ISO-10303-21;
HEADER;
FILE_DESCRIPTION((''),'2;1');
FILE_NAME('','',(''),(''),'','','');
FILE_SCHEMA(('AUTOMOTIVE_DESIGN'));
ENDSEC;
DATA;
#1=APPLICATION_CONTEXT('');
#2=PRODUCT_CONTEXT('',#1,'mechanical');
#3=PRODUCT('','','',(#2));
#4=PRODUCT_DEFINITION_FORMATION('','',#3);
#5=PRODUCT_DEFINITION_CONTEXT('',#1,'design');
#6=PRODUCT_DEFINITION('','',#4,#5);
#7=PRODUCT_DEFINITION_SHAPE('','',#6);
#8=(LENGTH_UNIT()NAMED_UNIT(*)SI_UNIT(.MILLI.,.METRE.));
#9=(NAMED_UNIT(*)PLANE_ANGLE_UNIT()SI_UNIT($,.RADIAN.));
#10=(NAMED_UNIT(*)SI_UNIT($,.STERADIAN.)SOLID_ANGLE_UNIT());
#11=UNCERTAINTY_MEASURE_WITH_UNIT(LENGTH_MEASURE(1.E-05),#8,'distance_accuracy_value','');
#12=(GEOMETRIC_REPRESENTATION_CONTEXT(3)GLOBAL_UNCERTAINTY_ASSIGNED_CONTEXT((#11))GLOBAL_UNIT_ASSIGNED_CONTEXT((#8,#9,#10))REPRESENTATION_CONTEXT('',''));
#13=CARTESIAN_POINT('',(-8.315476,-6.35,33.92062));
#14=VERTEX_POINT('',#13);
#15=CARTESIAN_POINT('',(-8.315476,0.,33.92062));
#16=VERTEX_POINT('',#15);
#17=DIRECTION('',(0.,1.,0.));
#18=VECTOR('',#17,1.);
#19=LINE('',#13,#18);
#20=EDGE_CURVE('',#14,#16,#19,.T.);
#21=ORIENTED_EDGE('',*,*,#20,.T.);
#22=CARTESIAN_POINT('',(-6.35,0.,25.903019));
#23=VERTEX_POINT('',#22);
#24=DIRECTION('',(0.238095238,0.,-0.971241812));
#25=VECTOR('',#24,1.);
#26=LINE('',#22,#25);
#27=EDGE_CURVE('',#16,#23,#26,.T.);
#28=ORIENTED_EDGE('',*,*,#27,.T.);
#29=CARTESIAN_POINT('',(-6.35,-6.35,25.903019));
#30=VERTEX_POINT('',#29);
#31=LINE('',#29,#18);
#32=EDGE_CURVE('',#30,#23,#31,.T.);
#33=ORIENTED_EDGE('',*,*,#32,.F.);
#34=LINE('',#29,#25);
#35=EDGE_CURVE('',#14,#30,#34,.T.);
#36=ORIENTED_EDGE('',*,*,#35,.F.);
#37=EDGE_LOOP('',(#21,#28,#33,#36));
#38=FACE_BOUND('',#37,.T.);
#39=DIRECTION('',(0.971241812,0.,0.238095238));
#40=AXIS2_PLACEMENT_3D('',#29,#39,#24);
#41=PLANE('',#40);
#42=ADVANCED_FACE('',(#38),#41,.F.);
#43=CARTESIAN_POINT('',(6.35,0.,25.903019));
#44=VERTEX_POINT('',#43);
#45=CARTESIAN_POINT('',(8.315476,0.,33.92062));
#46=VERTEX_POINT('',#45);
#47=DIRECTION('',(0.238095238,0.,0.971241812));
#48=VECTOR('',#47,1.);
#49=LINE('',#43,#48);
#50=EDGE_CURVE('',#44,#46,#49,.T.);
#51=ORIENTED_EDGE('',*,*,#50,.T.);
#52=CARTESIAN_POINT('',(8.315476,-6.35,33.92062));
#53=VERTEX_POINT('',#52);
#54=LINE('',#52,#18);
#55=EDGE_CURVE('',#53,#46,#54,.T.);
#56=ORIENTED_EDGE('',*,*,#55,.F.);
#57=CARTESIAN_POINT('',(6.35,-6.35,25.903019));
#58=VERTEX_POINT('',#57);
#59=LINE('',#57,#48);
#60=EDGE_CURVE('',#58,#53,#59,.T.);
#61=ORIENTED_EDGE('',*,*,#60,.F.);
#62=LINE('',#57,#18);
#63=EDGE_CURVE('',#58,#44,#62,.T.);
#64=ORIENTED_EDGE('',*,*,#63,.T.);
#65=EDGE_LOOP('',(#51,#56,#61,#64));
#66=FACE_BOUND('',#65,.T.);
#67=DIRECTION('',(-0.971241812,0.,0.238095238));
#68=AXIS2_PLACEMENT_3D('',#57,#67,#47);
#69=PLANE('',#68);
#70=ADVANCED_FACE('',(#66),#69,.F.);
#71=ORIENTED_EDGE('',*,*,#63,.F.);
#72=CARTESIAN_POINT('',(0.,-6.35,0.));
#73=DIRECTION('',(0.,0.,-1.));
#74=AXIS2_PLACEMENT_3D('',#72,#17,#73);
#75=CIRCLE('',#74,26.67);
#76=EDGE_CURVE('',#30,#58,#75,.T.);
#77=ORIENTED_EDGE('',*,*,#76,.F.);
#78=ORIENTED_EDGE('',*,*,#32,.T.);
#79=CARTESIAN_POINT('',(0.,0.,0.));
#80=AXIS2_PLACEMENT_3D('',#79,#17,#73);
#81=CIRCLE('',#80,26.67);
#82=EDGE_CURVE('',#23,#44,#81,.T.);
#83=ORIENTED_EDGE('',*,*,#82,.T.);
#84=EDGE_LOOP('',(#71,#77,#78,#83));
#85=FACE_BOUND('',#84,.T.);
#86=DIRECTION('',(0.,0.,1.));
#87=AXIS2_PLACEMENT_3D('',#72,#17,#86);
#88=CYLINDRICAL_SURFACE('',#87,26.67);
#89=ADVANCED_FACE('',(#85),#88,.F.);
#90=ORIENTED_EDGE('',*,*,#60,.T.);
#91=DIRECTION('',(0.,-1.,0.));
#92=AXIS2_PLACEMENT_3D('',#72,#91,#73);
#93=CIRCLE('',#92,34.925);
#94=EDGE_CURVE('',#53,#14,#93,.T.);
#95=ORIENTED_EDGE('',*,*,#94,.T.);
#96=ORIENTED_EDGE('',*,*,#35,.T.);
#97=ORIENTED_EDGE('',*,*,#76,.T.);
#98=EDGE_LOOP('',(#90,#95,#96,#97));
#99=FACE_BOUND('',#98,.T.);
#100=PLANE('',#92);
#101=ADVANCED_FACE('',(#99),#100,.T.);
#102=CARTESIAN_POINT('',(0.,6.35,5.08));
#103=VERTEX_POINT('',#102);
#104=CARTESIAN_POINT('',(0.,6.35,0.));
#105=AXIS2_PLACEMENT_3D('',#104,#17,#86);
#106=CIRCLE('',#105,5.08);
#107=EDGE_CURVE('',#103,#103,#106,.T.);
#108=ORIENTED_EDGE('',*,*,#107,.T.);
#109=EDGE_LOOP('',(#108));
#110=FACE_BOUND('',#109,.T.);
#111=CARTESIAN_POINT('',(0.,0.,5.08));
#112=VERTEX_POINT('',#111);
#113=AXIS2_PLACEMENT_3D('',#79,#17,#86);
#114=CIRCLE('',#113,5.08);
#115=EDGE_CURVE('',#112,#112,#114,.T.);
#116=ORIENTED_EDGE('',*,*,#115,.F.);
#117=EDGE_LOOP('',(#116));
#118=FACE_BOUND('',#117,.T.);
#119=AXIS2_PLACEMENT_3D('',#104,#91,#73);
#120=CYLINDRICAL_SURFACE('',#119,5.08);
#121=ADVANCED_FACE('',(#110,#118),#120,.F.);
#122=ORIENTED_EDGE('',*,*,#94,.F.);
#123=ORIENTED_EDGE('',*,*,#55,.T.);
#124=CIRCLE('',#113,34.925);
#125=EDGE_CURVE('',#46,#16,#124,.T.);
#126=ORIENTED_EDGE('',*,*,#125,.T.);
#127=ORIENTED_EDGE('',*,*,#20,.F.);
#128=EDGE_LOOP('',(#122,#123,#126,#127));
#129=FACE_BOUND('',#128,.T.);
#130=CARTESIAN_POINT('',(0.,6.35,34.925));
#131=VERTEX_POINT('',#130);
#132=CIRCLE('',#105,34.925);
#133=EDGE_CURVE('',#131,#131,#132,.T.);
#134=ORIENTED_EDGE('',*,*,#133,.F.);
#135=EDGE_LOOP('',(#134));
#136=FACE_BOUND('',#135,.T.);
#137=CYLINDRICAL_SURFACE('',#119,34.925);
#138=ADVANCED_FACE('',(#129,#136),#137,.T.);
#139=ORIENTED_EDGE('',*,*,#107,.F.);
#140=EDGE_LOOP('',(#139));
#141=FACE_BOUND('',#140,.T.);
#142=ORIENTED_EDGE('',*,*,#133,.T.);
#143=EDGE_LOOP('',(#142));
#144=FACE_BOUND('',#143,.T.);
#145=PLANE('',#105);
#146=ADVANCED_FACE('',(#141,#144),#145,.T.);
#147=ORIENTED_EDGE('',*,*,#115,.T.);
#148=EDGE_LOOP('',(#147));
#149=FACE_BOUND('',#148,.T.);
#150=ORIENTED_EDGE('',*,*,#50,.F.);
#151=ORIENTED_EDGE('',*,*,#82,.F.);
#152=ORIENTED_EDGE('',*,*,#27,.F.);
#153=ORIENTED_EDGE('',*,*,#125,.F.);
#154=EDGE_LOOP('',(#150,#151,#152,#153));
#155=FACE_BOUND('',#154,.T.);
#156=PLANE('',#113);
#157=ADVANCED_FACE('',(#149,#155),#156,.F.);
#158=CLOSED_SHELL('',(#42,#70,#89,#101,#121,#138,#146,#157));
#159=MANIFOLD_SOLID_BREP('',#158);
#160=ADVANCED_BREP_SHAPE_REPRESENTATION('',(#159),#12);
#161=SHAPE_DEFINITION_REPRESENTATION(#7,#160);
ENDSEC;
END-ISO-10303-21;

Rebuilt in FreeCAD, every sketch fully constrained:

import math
import FreeCAD as App
import Part
import Sketcher
from FreeCAD import Vector
Q = App.Units.Quantity

doc = App.newDocument("Part")
params = doc.addObject("Spreadsheet::Sheet", "Params")
for row, (alias, value) in enumerate([
    ("sketch1_diameter", "0.4 in"),
    ("sketch1_diameter2", "2.75 in"),
    ("pad1_length", "0.25 in"),
    ("sketch2_radius", "1.05 in"),
    ("sketch2_radius2", "1.375 in"),
    ("pad2_length", "0.25 in"),
], start=1):
    params.set(f"A{row}", alias)
    params.set(f"B{row}", "=" + value)
    params.setAlias(f"B{row}", alias)

body = doc.addObject("PartDesign::Body", "Body")

# Sketch on XZ plane
sketch1 = body.newObject("Sketcher::SketchObject", "Sketch")
sketch1.AttachmentSupport = (doc.getObject("XZ_Plane"), [""])
sketch1.MapMode = "FlatFace"
sketch1.addGeometry(Part.Circle(Vector(0, 0, 0), Vector(0, 0, 1), 34.925), False)
sketch1.addGeometry(Part.Circle(Vector(0, 0, 0), Vector(0, 0, 1), 5.08), False)
sketch1.addConstraint(Sketcher.Constraint("Coincident", 0, 3, -1, 1))
sketch1.addConstraint(Sketcher.Constraint("Coincident", 1, 3, -1, 1))
sketch1.addConstraint(Sketcher.Constraint("Diameter", 1, Q("0.4 in")))
sketch1.addConstraint(Sketcher.Constraint("Diameter", 0, Q("2.75 in")))
sketch1.setExpression("Constraints[2]", "Params.sketch1_diameter")
sketch1.setExpression("Constraints[3]", "Params.sketch1_diameter2")
pad1 = body.newObject("PartDesign::Pad", "Pad")
pad1.Profile = sketch1
pad1.setExpression("Length", "Params.pad1_length")
pad1.Reversed = True

# Sketch on XZ plane
sketch2 = body.newObject("Sketcher::SketchObject", "Sketch001")
sketch2.AttachmentSupport = (doc.getObject("XZ_Plane"), [""])
sketch2.MapMode = "FlatFace"
sketch2.AttachmentOffset = App.Placement(Vector(0, 0, 0.25 * 25.4), App.Rotation())
sketch2.addGeometry(Part.LineSegment(Vector(6.35, 25.903019, 0), Vector(8.315476, 33.92062, 0)), False)
sketch2.addGeometry(Part.ArcOfCircle(Part.Circle(Vector(0, 0, 0), Vector(0, 0, 1), 34.925), math.radians(76.225853), math.radians(103.774147)), False)
sketch2.addGeometry(Part.LineSegment(Vector(-8.315476, 33.92062, 0), Vector(-6.35, 25.903019, 0)), False)
sketch2.addGeometry(Part.ArcOfCircle(Part.Circle(Vector(0, 0, 0), Vector(0, 0, 1), 26.67), math.radians(76.225853), math.radians(103.774147)), False)
sketch2.addConstraint(Sketcher.Constraint("Coincident", 0, 2, 1, 1))
sketch2.addConstraint(Sketcher.Constraint("Coincident", 1, 2, 2, 1))
sketch2.addConstraint(Sketcher.Constraint("Coincident", 2, 2, 3, 2))
sketch2.addConstraint(Sketcher.Constraint("Coincident", 3, 1, 0, 1))
sketch2.addConstraint(Sketcher.Constraint("Coincident", 1, 3, -1, 1))
sketch2.addConstraint(Sketcher.Constraint("Coincident", 3, 3, -1, 1))
sketch2.addConstraint(Sketcher.Constraint("Horizontal", 0, 2, 1, 2))
sketch2.addConstraint(Sketcher.Constraint("Horizontal", 2, 2, 3, 1))
sketch2.addConstraint(Sketcher.Constraint("Radius", 3, Q("1.05 in")))
sketch2.addConstraint(Sketcher.Constraint("Radius", 1, Q("1.375 in")))
sketch2.addConstraint(Sketcher.Constraint("DistanceX", 2, 2, 3, 1, Q("0.5 in")))
sketch2.addConstraint(Sketcher.Constraint("DistanceY", 2, 2, 1, 2, 8.017601))
sketch2.setExpression("Constraints[8]", "Params.sketch2_radius")
sketch2.setExpression("Constraints[9]", "Params.sketch2_radius2")
pad2 = body.newObject("PartDesign::Pad", "Pad001")
pad2.Profile = sketch2
pad2.setExpression("Length", "Params.pad2_length")
pad2.Reversed = True

doc.recompute()
